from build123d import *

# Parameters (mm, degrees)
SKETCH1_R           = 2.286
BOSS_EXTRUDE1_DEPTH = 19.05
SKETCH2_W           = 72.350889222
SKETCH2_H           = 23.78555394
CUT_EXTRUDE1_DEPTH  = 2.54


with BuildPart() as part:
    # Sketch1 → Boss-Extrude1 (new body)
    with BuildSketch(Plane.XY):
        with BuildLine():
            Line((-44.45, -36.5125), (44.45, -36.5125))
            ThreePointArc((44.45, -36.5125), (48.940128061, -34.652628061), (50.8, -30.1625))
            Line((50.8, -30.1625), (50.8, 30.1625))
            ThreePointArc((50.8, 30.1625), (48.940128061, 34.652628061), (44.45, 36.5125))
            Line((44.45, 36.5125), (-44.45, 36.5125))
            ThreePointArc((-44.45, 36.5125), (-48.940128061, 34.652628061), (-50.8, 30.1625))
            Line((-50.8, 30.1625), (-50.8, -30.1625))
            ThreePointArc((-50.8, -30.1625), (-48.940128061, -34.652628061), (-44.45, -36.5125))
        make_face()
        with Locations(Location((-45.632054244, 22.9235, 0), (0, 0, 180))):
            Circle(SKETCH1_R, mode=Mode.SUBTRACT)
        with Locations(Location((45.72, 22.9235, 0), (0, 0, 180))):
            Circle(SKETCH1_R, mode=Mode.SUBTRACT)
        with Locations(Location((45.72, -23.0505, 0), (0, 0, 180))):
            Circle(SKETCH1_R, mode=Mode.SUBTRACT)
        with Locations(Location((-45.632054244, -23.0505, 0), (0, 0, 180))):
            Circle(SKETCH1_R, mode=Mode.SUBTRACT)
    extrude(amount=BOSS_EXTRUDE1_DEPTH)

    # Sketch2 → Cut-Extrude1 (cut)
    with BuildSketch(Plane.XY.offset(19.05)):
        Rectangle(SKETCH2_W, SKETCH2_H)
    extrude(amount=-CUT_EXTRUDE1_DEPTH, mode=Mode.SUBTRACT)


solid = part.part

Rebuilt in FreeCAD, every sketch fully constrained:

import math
import FreeCAD as App
import Part
import Sketcher

V = App.Vector
Q = App.Units.Quantity


def add_polygon(sketch, points):
    """Adds a closed chain of lines whose ends are joined by coincident constraints."""
    first, n = sketch.GeometryCount, len(points)
    for a, b in zip(points, points[1:] + points[:1]):
        sketch.addGeometry(Part.LineSegment(App.Vector(*a, 0), App.Vector(*b, 0)), False)
    for i in range(n):
        sketch.addConstraint(Sketcher.Constraint("Coincident", first + i, 2, first + (i + 1) % n, 1))

doc = App.newDocument("Part")
params = doc.addObject("Spreadsheet::Sheet", "Params")
for row, (alias, value) in enumerate([
    ("sketch1_diameter", "0.18 in"),
    ("sketch1_radius", "0.25 in"),
    ("sketch1_width", "3.5 in"),
    ("sketch1_height", "2.375 in"),
    ("pad1_length", "0.75 in"),
    ("pocket1_length", "0.1 in"),
], start=1):
    params.set(f"A{row}", alias)
    params.set(f"B{row}", "=" + value)
    params.setAlias(f"B{row}", alias)

body = doc.addObject("PartDesign::Body", "Body")

sketch1 = body.newObject("Sketcher::SketchObject", "Sketch")
sketch1.AttachmentSupport = (doc.getObject("XY_Plane"), [""])
sketch1.MapMode = "FlatFace"
sketch1.addGeometry(Part.LineSegment(V(-44.45, -36.5125, 0), V(44.45, -36.5125, 0)), False)
sketch1.addGeometry(Part.ArcOfCircle(Part.Circle(V(44.45, -30.1625, 0), V(0, 0, 1), 6.35), math.radians(-90), math.radians(0)), False)
sketch1.addGeometry(Part.LineSegment(V(50.8, -30.1625, 0), V(50.8, 30.1625, 0)), False)
sketch1.addGeometry(Part.ArcOfCircle(Part.Circle(V(44.45, 30.1625, 0), V(0, 0, 1), 6.35), math.radians(0), math.radians(90)), False)
sketch1.addGeometry(Part.LineSegment(V(44.45, 36.5125, 0), V(-44.45, 36.5125, 0)), False)
sketch1.addGeometry(Part.ArcOfCircle(Part.Circle(V(-44.45, 30.1625, 0), V(0, 0, 1), 6.35), math.radians(90), math.radians(180)), False)
sketch1.addGeometry(Part.LineSegment(V(-50.8, 30.1625, 0), V(-50.8, -30.1625, 0)), False)
sketch1.addGeometry(Part.ArcOfCircle(Part.Circle(V(-44.45, -30.1625, 0), V(0, 0, 1), 6.35), math.radians(180), math.radians(270)), False)
sketch1.addGeometry(Part.Circle(V(-45.632054, -23.0505, 0), V(0, 0, 1), 2.286), False)
sketch1.addGeometry(Part.Circle(V(45.72, -23.0505, 0), V(0, 0, 1), 2.286), False)
sketch1.addGeometry(Part.Circle(V(-45.632054, 22.9235, 0), V(0, 0, 1), 2.286), False)
sketch1.addGeometry(Part.Circle(V(45.72, 22.9235, 0), V(0, 0, 1), 2.286), False)
sketch1.addConstraint(Sketcher.Constraint("Tangent", 0, 2, 1, 1))
sketch1.addConstraint(Sketcher.Constraint("Tangent", 1, 2, 2, 1))
sketch1.addConstraint(Sketcher.Constraint("Tangent", 2, 2, 3, 1))
sketch1.addConstraint(Sketcher.Constraint("Tangent", 3, 2, 4, 1))
sketch1.addConstraint(Sketcher.Constraint("Tangent", 4, 2, 5, 1))
sketch1.addConstraint(Sketcher.Constraint("Tangent", 5, 2, 6, 1))
sketch1.addConstraint(Sketcher.Constraint("Tangent", 6, 2, 7, 1))
sketch1.addConstraint(Sketcher.Constraint("Tangent", 7, 2, 0, 1))
sketch1.addConstraint(Sketcher.Constraint("Horizontal", 0))
sketch1.addConstraint(Sketcher.Constraint("Vertical", 2))
sketch1.addConstraint(Sketcher.Constraint("Horizontal", 4))
sketch1.addConstraint(Sketcher.Constraint("Vertical", 6))
sketch1.addConstraint(Sketcher.Constraint("Equal", 1, 3))
sketch1.addConstraint(Sketcher.Constraint("Equal", 3, 5))
sketch1.addConstraint(Sketcher.Constraint("Equal", 5, 7))
sketch1.addConstraint(Sketcher.Constraint("Equal", 8, 9))
sketch1.addConstraint(Sketcher.Constraint("Equal", 9, 10))
sketch1.addConstraint(Sketcher.Constraint("Equal", 10, 11))
sketch1.addConstraint(Sketcher.Constraint("Symmetric", 1, 3, 5, 3, -1, 1))
sketch1.addConstraint(Sketcher.Constraint("Horizontal", 8, 3, 9, 3))
sketch1.addConstraint(Sketcher.Constraint("Horizontal", 10, 3, 11, 3))
sketch1.addConstraint(Sketcher.Constraint("Vertical", 8, 3, 10, 3))
sketch1.addConstraint(Sketcher.Constraint("Vertical", 9, 3, 11, 3))
sketch1.addConstraint(Sketcher.Constraint("Diameter", 8, Q("0.18 in")))
sketch1.addConstraint(Sketcher.Constraint("Radius", 1, Q("0.25 in")))
sketch1.addConstraint(Sketcher.Constraint("DistanceX", 0, 1, 0, 2, Q("3.5 in")))
sketch1.addConstraint(Sketcher.Constraint("DistanceX", -1, 1, 9, 3, Q("1.8 in")))
sketch1.addConstraint(Sketcher.Constraint("DistanceY", 2, 1, 2, 2, Q("2.375 in")))
sketch1.addConstraint(Sketcher.Constraint("DistanceY", 7, 3, 8, 3, Q("0.28 in")))
sketch1.addConstraint(Sketcher.Constraint("DistanceY", 8, 3, 10, 3, Q("1.81 in")))
sketch1.addConstraint(Sketcher.Constraint("DistanceX", 8, 3, -1, 1, Q("45.632054 mm")))
sketch1.setExpression("Constraints[23]", "Params.sketch1_diameter")
sketch1.setExpression("Constraints[24]", "Params.sketch1_radius")
sketch1.setExpression("Constraints[25]", "Params.sketch1_width")
sketch1.setExpression("Constraints[27]", "Params.sketch1_height")
pad1 = body.newObject("PartDesign::Pad", "Pad")
pad1.Profile = sketch1
pad1.setExpression("Length", "Params.pad1_length")

sketch2 = body.newObject("Sketcher::SketchObject", "Sketch001")
sketch2.AttachmentSupport = (doc.getObject("XY_Plane"), [""])
sketch2.MapMode = "FlatFace"
sketch2.AttachmentOffset = App.Placement(V(0, 0, 0.75 * 25.4), App.Rotation())
add_polygon(sketch2, [(-36.175445, 11.892777), (-36.175445, -11.892777), (36.175445, -11.892777), (36.175445, 11.892777)])
sketch2.addConstraint(Sketcher.Constraint("Vertical", 0))
sketch2.addConstraint(Sketcher.Constraint("Horizontal", 1))
sketch2.addConstraint(Sketcher.Constraint("Vertical", 2))
sketch2.addConstraint(Sketcher.Constraint("Horizontal", 3))
sketch2.addConstraint(Sketcher.Constraint("Symmetric", 0, 2, 2, 2, -1, 1))
sketch2.addConstraint(Sketcher.Constraint("DistanceX", 1, 1, 1, 2, Q("72.350889 mm")))
sketch2.addConstraint(Sketcher.Constraint("DistanceY", 0, 2, 0, 1, Q("23.785554 mm")))
pocket1 = body.newObject("PartDesign::Pocket", "Pocket")
pocket1.Profile = sketch2
pocket1.setExpression("Length", "Params.pocket1_length")

doc.recompute()
